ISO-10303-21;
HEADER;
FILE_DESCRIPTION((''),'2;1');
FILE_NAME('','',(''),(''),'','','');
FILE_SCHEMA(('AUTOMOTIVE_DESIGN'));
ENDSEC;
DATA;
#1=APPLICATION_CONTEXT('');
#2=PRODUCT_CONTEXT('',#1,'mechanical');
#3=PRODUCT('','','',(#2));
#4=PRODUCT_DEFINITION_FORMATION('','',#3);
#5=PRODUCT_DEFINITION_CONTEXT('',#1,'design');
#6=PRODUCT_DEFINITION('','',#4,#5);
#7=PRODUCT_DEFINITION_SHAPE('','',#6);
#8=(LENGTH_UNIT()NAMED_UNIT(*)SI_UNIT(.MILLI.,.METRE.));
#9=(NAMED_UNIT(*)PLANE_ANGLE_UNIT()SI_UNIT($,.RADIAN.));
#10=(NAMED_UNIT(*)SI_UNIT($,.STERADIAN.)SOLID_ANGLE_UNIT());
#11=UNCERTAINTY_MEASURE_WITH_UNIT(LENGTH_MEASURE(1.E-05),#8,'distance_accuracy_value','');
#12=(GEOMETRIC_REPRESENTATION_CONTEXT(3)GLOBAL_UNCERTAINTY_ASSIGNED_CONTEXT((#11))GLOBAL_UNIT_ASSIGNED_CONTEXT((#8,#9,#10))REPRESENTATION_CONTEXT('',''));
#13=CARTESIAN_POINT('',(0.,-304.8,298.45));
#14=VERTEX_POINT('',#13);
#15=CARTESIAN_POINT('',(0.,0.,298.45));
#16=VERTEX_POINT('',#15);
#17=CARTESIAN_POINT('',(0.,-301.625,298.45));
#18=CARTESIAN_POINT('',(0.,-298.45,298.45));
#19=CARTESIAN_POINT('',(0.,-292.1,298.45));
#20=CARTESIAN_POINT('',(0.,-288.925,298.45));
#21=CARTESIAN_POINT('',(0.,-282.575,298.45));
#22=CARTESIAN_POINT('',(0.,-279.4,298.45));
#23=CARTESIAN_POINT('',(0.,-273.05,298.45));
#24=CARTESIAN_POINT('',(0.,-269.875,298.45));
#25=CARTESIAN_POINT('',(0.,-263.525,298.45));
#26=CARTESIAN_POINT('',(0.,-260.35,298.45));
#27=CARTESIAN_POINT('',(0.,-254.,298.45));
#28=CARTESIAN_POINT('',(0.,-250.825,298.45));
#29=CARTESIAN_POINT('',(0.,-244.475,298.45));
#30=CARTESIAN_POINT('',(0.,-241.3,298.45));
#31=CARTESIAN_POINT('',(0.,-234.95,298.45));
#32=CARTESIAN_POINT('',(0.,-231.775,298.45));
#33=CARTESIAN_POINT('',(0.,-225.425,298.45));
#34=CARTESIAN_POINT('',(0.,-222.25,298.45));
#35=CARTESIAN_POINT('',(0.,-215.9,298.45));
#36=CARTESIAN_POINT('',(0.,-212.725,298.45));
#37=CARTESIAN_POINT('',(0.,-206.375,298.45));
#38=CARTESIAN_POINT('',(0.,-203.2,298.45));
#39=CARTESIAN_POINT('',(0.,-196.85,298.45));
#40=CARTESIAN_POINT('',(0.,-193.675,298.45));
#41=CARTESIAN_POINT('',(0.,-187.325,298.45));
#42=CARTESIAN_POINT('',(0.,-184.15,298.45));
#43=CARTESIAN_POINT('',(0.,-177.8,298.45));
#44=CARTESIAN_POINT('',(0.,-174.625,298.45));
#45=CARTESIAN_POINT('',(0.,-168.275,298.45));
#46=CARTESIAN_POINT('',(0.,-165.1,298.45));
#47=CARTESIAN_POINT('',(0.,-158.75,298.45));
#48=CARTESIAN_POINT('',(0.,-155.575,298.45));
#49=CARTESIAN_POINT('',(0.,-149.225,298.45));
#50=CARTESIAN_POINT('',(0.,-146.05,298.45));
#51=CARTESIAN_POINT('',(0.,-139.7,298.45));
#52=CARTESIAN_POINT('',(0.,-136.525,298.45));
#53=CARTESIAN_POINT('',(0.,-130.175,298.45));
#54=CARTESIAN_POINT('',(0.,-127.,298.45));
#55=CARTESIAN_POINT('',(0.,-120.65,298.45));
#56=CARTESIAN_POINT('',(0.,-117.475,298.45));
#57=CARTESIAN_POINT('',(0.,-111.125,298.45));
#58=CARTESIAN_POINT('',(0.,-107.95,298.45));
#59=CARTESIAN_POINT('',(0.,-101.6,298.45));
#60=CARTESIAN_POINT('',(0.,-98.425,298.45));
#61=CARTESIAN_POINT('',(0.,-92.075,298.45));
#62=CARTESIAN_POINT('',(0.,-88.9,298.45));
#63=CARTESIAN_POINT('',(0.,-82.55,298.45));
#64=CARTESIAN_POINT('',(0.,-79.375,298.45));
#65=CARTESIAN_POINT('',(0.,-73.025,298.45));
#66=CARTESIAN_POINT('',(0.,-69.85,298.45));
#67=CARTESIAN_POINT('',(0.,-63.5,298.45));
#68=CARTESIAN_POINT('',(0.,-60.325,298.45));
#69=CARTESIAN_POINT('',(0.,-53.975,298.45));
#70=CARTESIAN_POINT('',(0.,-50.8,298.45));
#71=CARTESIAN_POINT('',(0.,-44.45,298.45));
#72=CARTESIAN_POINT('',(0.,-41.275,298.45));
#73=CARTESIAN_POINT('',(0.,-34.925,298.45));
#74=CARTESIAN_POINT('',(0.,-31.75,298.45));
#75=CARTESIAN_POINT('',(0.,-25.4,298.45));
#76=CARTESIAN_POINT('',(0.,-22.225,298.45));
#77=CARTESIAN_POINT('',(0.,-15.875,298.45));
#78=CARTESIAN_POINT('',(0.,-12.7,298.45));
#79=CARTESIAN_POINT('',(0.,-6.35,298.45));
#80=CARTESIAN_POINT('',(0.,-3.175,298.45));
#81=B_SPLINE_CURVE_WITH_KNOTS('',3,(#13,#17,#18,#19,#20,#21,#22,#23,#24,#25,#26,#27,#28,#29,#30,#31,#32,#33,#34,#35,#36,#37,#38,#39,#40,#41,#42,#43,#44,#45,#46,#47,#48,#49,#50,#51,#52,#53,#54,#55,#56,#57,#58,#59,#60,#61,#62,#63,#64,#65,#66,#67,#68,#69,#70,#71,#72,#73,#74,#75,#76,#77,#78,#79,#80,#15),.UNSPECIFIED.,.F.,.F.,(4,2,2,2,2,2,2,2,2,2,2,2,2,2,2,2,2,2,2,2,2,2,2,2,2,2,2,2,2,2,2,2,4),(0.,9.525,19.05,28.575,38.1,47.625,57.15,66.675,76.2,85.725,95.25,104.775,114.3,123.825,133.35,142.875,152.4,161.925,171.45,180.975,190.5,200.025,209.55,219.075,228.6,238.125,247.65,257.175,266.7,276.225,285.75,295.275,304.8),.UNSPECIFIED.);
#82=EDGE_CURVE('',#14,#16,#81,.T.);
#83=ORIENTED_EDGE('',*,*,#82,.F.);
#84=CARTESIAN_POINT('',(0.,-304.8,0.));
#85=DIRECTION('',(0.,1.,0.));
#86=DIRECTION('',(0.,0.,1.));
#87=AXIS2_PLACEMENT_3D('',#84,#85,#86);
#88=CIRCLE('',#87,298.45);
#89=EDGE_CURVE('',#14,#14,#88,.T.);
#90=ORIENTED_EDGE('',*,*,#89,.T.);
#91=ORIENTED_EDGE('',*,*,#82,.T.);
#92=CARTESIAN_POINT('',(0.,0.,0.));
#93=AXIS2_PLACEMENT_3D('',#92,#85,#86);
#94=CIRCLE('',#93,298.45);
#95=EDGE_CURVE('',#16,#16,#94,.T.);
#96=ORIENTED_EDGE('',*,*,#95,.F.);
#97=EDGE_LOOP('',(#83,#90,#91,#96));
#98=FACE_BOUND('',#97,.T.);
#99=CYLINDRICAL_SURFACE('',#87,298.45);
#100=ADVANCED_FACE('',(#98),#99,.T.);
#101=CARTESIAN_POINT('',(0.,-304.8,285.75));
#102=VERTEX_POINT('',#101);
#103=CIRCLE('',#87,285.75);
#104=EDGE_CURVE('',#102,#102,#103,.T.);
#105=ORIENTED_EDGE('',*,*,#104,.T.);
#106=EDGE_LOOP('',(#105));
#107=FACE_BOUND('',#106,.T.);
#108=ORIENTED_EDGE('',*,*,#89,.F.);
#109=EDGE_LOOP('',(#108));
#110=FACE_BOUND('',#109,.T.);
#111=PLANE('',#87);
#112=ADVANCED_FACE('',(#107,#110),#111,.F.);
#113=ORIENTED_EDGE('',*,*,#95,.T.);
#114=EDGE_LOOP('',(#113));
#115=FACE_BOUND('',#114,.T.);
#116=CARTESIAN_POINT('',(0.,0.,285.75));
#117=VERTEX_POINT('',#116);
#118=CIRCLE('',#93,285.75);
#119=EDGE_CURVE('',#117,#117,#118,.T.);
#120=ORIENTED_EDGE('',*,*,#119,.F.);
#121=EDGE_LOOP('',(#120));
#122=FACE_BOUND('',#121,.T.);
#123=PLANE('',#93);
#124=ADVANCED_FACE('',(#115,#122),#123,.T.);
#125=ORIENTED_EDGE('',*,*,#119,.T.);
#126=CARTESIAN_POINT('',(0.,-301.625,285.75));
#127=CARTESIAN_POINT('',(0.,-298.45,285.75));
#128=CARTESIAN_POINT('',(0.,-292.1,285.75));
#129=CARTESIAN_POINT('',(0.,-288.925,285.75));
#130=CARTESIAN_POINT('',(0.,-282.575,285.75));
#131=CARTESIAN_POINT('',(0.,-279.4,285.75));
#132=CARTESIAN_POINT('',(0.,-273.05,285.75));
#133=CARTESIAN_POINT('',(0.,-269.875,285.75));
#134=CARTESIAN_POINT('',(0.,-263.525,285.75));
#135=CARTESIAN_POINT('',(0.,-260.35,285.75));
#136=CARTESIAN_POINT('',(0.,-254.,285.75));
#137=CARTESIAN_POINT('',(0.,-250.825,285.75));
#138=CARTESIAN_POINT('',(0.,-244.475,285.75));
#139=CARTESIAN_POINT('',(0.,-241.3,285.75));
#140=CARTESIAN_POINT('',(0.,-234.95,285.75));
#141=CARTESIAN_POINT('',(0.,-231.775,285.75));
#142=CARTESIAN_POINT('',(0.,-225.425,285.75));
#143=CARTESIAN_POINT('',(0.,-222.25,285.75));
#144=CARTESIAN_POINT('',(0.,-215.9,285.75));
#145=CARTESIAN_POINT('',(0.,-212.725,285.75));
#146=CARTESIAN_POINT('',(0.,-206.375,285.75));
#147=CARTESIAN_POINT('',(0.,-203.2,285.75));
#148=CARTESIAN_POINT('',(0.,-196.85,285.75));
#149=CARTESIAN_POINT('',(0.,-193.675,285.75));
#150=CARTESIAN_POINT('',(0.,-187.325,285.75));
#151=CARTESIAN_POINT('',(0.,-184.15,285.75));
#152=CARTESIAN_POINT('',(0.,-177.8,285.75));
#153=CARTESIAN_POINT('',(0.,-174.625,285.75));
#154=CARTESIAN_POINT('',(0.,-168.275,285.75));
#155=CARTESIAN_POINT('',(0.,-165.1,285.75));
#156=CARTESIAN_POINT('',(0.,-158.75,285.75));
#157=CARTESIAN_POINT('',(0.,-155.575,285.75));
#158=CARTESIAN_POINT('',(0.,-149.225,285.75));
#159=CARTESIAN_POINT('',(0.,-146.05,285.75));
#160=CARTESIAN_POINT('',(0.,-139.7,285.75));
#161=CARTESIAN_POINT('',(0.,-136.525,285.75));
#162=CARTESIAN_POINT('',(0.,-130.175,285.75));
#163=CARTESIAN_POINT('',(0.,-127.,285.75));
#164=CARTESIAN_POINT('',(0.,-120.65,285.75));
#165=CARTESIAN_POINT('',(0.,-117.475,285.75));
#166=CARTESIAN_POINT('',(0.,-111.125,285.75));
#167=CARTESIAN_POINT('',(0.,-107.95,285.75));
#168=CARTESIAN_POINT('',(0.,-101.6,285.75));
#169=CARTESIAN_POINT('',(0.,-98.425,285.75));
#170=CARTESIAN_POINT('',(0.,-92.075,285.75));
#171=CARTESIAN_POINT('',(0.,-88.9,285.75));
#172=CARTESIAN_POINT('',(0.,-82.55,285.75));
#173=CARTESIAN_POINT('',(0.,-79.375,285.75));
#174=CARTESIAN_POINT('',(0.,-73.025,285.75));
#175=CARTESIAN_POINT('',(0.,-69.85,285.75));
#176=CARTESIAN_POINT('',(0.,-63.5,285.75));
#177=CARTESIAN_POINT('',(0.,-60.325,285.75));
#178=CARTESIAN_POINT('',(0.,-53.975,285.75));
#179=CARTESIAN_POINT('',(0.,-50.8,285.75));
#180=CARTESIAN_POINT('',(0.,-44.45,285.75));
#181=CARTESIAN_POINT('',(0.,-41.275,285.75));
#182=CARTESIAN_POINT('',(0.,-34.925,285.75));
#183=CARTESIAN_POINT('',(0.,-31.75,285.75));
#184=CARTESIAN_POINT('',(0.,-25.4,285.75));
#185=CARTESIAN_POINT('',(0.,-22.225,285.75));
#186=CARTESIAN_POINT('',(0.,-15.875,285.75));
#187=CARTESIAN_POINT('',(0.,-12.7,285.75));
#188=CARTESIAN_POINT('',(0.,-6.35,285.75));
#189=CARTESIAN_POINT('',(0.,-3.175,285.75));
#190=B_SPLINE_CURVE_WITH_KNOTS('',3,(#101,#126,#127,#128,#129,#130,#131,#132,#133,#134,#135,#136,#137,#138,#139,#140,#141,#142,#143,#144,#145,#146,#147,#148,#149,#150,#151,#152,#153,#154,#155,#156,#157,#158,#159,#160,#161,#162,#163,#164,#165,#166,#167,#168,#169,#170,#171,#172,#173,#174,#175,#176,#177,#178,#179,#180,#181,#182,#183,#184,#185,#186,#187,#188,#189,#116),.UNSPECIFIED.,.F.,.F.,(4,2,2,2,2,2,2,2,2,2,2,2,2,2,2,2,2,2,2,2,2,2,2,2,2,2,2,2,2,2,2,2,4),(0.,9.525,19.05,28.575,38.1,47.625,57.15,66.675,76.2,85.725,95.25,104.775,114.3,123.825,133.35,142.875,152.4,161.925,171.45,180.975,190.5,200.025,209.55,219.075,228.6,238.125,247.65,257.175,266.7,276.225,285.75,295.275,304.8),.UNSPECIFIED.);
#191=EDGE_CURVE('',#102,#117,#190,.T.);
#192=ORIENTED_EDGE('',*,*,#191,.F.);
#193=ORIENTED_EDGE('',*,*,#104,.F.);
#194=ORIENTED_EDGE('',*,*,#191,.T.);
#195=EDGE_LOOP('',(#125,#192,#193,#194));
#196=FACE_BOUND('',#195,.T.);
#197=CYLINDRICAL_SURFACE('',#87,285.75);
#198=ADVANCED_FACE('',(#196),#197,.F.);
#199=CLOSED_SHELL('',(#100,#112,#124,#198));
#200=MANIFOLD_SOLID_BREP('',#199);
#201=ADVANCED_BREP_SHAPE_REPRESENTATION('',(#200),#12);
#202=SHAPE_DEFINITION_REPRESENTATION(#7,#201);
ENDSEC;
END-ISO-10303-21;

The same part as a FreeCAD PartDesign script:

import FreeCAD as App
import Part
import Sketcher
from FreeCAD import Vector
Q = App.Units.Quantity

doc = App.newDocument("Part")
body = doc.addObject("PartDesign::Body", "Body")

# Sketch on XZ plane
sketch1 = body.newObject("Sketcher::SketchObject", "Sketch")
sketch1.AttachmentSupport = (doc.getObject("XZ_Plane"), [""])
sketch1.MapMode = "FlatFace"
sketch1.addGeometry([
    Part.Circle(Vector(0, 0, 0), Vector(0, 0, 1), 298.45),
    Part.Circle(Vector(0, 0, 0), Vector(0, 0, 1), 285.75),
], False)
sketch1.addConstraint([
    Sketcher.Constraint("Coincident", 0, 3, -1, 1),
    Sketcher.Constraint("Coincident", 1, 3, -1, 1),
    Sketcher.Constraint("Diameter", 0, Q("23.5 in")),
    Sketcher.Constraint("Diameter", 1, Q("22.5 in")),
])
pad1 = body.newObject("PartDesign::Pad", "Pad")
pad1.Profile = sketch1
pad1.Length = Q("12 in")

doc.recompute()
